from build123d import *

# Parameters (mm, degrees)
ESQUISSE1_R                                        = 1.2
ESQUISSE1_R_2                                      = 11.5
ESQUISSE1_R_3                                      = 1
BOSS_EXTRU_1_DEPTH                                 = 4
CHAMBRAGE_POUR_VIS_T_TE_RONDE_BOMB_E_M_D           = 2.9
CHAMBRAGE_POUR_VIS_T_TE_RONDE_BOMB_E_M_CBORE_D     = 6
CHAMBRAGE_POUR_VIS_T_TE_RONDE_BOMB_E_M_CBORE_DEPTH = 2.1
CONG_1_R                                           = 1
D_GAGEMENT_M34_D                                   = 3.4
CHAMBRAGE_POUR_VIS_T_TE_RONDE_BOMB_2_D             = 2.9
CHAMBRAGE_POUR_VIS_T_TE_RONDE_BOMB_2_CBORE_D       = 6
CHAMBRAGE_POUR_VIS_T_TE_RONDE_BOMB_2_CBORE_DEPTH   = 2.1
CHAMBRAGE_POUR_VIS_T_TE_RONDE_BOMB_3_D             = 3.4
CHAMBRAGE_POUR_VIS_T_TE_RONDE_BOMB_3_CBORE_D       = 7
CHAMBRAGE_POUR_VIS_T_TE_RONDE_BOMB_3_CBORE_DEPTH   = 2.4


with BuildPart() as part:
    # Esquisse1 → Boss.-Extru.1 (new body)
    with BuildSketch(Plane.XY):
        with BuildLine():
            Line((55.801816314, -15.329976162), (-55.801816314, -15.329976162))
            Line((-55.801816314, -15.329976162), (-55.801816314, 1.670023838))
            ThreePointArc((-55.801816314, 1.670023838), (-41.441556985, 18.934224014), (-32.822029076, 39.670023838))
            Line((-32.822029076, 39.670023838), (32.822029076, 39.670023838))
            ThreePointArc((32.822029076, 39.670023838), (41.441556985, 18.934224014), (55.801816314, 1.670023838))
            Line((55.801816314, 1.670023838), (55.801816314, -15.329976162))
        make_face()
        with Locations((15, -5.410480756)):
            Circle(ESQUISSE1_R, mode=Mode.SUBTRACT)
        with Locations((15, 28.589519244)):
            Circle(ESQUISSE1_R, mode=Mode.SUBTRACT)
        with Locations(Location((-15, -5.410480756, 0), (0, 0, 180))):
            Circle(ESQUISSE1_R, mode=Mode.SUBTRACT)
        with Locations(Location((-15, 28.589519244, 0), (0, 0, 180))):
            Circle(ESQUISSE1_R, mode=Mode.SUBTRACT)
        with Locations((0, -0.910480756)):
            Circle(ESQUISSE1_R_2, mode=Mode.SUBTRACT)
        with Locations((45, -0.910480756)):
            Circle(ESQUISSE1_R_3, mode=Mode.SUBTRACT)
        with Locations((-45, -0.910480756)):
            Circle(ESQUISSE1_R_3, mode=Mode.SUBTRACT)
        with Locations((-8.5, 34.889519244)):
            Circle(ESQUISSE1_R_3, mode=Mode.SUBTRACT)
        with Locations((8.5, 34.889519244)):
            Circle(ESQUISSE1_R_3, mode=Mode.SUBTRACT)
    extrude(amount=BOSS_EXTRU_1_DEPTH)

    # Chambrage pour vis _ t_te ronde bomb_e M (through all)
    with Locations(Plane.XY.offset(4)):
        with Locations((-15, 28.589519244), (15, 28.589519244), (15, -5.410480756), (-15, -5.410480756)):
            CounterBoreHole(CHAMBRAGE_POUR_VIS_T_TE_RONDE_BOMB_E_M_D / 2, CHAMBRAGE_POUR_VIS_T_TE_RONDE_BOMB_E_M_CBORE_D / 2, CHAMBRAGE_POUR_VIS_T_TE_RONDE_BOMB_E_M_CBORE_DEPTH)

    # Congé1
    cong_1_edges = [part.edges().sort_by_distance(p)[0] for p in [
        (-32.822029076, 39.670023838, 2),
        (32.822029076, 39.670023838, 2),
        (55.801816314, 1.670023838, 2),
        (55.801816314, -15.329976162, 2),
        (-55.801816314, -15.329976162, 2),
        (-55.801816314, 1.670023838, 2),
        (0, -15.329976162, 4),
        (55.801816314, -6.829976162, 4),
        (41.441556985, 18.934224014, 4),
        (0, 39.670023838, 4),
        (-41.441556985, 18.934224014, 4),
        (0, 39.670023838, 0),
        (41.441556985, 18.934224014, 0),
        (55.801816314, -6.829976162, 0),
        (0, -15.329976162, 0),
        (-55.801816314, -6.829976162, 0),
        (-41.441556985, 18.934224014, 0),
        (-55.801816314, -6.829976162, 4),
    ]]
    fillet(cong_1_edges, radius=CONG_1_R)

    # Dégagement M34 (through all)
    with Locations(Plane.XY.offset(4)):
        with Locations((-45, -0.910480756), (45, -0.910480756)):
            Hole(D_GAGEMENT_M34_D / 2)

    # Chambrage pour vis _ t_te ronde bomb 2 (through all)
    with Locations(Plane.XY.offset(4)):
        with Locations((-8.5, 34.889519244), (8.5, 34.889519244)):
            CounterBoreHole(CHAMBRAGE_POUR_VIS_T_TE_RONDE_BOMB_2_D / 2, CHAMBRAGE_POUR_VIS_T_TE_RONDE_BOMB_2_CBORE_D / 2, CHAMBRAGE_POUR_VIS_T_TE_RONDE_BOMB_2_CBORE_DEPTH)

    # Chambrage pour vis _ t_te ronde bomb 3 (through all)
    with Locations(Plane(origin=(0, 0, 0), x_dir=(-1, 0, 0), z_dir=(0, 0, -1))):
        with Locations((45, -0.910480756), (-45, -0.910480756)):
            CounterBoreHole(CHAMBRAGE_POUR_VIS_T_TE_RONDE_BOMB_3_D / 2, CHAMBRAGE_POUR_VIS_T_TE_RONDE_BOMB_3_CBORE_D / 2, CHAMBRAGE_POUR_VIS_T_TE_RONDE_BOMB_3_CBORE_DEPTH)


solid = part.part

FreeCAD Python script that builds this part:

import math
import FreeCAD as App
import Part
import Sketcher
from FreeCAD import Vector


def edges_at(feature, points):
    """Names of the edges that pass closest to the given points."""
    edges = feature.Shape.Edges
    near = lambda p: min(range(len(edges)), key=lambda i: edges[i].distToShape(Part.Vertex(*p))[0])
    return sorted({f"Edge{near(p) + 1}" for p in points})

doc = App.newDocument("Part")
body = doc.addObject("PartDesign::Body", "Body")

# Sketch on XY plane
sketch1 = doc.addObject("Sketcher::SketchObject", "Sketch")
body.addObject(sketch1)
sketch1.AttachmentSupport = (doc.XY_Plane, [""])
sketch1.MapMode = "FlatFace"
sketch1.addGeometry([
    Part.LineSegment(Vector(-55.801816, -15.329976, 0), Vector(55.801816, -15.329976, 0)),  # 0
    Part.LineSegment(Vector(55.801816, -15.329976, 0), Vector(55.801816, 1.670024, 0)),  # 1
    Part.ArcOfCircle(Part.Circle(Vector(105.760713, 57.830027, 0), Vector(0, 0, 1), 75.1654), math.radians(-166.018974), math.radians(-131.655698)),  # 2
    Part.LineSegment(Vector(32.822029, 39.670024, 0), Vector(-32.822029, 39.670024, 0)),  # 3
    Part.ArcOfCircle(Part.Circle(Vector(-105.760713, 57.830027, 0), Vector(0, 0, 1), 75.1654), math.radians(-48.344302), math.radians(-13.981026)),  # 4
    Part.LineSegment(Vector(-55.801816, 1.670024, 0), Vector(-55.801816, -15.329976, 0)),  # 5
    Part.Circle(Vector(45, -0.910481, 0), Vector(0, 0, 1), 1),  # 6
    Part.Circle(Vector(15, -5.410481, 0), Vector(0, 0, 1), 1.2),  # 7
    Part.Circle(Vector(0, -0.910481, 0), Vector(0, 0, 1), 11.5),  # 8
    Part.Circle(Vector(-15, -5.410481, 0), Vector(0, 0, 1), 1.2),  # 9
    Part.Circle(Vector(-45, -0.910481, 0), Vector(0, 0, 1), 1),  # 10
    Part.Circle(Vector(15, 28.589519, 0), Vector(0, 0, 1), 1.2),  # 11
    Part.Circle(Vector(8.5, 34.889519, 0), Vector(0, 0, 1), 1),  # 12
    Part.Circle(Vector(-15, 28.589519, 0), Vector(0, 0, 1), 1.2),  # 13
    Part.Circle(Vector(-8.5, 34.889519, 0), Vector(0, 0, 1), 1),  # 14
], False)
sketch1.addConstraint([
    Sketcher.Constraint("Coincident", 0, 2, 1, 1),
    Sketcher.Constraint("Coincident", 1, 2, 2, 2),
    Sketcher.Constraint("Coincident", 2, 1, 3, 1),
    Sketcher.Constraint("Coincident", 3, 2, 4, 2),
    Sketcher.Constraint("Coincident", 4, 1, 5, 1),
    Sketcher.Constraint("Coincident", 5, 2, 0, 1),
    Sketcher.Constraint("Horizontal", 0),
    Sketcher.Constraint("Vertical", 1),
    Sketcher.Constraint("Horizontal", 3),
    Sketcher.Constraint("Vertical", 5),
    Sketcher.Constraint("Equal", 2, 4),
    Sketcher.Constraint("Equal", 7, 9),
    Sketcher.Constraint("Equal", 6, 10),
    Sketcher.Constraint("Equal", 9, 11),
    Sketcher.Constraint("Equal", 10, 12),
    Sketcher.Constraint("Equal", 11, 13),
    Sketcher.Constraint("Equal", 12, 14),
    Sketcher.Constraint("Symmetric", 2, 3, 4, 3, -2),
    Sketcher.Constraint("Symmetric", 7, 3, 9, 3, -2),
    Sketcher.Constraint("Symmetric", 6, 3, 10, 3, -2),
    Sketcher.Constraint("Symmetric", 11, 3, 13, 3, -2),
    Sketcher.Constraint("Symmetric", 12, 3, 14, 3, -2),
    Sketcher.Constraint("PointOnObject", 8, 3, -2),
    Sketcher.Constraint("Horizontal", 6, 3, 8, 3),
    Sketcher.Constraint("Horizontal", 1, 2, 4, 1),
    Sketcher.Constraint("Vertical", 7, 3, 11, 3),
    Sketcher.Constraint("Diameter", 6, 2.0),
    Sketcher.Constraint("Diameter", 8, 23.0),
    Sketcher.Constraint("Diameter", 7, 2.4),
    Sketcher.Constraint("DistanceY", 1, 1, 1, 2, 17.0),
    Sketcher.Constraint("DistanceX", -1, 1, 6, 3, 45.0),
    Sketcher.Constraint("DistanceX", -1, 1, 7, 3, 15.0),
    Sketcher.Constraint("DistanceY", 7, 3, 11, 3, 34.0),
    Sketcher.Constraint("DistanceX", 14, 3, 12, 3, 17.0),
    Sketcher.Constraint("DistanceY", 1, 2, 2, 1, 38.0),
    Sketcher.Constraint("Radius", 2, 75.1654),
    Sketcher.Constraint("DistanceY", 7, 3, 6, 3, 4.5),
    Sketcher.Constraint("DistanceY", 11, 3, 12, 3, 6.3),
    Sketcher.Constraint("DistanceX", 3, 2, 3, 1, 65.644058),
    Sketcher.Constraint("DistanceX", 0, 1, 0, 2, 111.603633),
    Sketcher.Constraint("DistanceY", 6, 3, -1, 1, 0.910481),
    Sketcher.Constraint("DistanceY", -1, 1, 2, 3, 57.830027),
])
pad1 = doc.addObject("PartDesign::Pad", "Pad")
body.addObject(pad1)
pad1.Profile = sketch1
pad1.Length = 4

# Sketch on XY plane
sketch2 = doc.addObject("Sketcher::SketchObject", "Sketch001")
body.addObject(sketch2)
sketch2.AttachmentSupport = (doc.XY_Plane, [""])
sketch2.MapMode = "FlatFace"
sketch2.AttachmentOffset = App.Placement(Vector(0, 0, 4), App.Rotation())
sketch2.addGeometry([
    Part.Circle(Vector(-15, 28.589519, 0), Vector(0, 0, 1), 1.45),
    Part.Circle(Vector(15, 28.589519, 0), Vector(0, 0, 1), 1.45),
    Part.Circle(Vector(15, -5.410481, 0), Vector(0, 0, 1), 1.45),
    Part.Circle(Vector(-15, -5.410481, 0), Vector(0, 0, 1), 1.45),
], False)
sketch2.addConstraint([
    Sketcher.Constraint("Equal", 0, 1),
    Sketcher.Constraint("Equal", 1, 2),
    Sketcher.Constraint("Equal", 2, 3),
    Sketcher.Constraint("Symmetric", 0, 3, 1, 3, -2),
    Sketcher.Constraint("Symmetric", 2, 3, 3, 3, -2),
    Sketcher.Constraint("Vertical", 1, 3, 2, 3),
    Sketcher.Constraint("Diameter", 0, 2.9),
    Sketcher.Constraint("DistanceX", 0, 3, -1, 1, 15.0),
    Sketcher.Constraint("DistanceY", 2, 3, 1, 3, 34.0),
    Sketcher.Constraint("DistanceY", -1, 1, 0, 3, 28.589519),
])
doc.recompute()
hole = doc.addObject("PartDesign::Hole", "Hole")
body.addObject(hole)
hole.Profile = sketch2
hole.ThreadType = "None"
hole.Diameter = 2.9
hole.DepthType = "ThroughAll"
hole.HoleCutType = "Counterbore"
hole.HoleCutDiameter = 6
hole.HoleCutDepth = 2.1
doc.recompute()

fillet = doc.addObject("PartDesign::Fillet", "Fillet")
body.addObject(fillet)
fillet.Base = (hole, edges_at(hole, [
    (-32.822, 39.67, 2),
    (32.822, 39.67, 2),
    (55.802, 1.67, 2),
    (55.802, -15.33, 2),
    (-55.802, -15.33, 2),
    (-55.802, 1.67, 2),
    (0, -15.33, 4),
    (55.802, -6.83, 4),
    (41.442, 18.934, 4),
    (0, 39.67, 4),
    (-41.442, 18.934, 4),
    (0, 39.67, 0),
    (41.442, 18.934, 0),
    (55.802, -6.83, 0),
    (0, -15.33, 0),
    (-55.802, -6.83, 0),
    (-41.442, 18.934, 0),
    (-55.802, -6.83, 4),
]))
fillet.Radius = 1

# Sketch on XY plane
sketch3 = doc.addObject("Sketcher::SketchObject", "Sketch002")
body.addObject(sketch3)
sketch3.AttachmentSupport = (doc.XY_Plane, [""])
sketch3.MapMode = "FlatFace"
sketch3.AttachmentOffset = App.Placement(Vector(0, 0, 4), App.Rotation())
sketch3.addGeometry([
    Part.Circle(Vector(-45, -0.910481, 0), Vector(0, 0, 1), 1.7),
    Part.Circle(Vector(45, -0.910481, 0), Vector(0, 0, 1), 1.7),
], False)
sketch3.addConstraint([
    Sketcher.Constraint("Equal", 0, 1),
    Sketcher.Constraint("Symmetric", 0, 3, 1, 3, -2),
    Sketcher.Constraint("Diameter", 0, 3.4),
    Sketcher.Constraint("DistanceX", 0, 3, -1, 1, 45.0),
    Sketcher.Constraint("DistanceY", 0, 3, -1, 1, 0.910481),
])
doc.recompute()
hole2 = doc.addObject("PartDesign::Hole", "Hole001")
body.addObject(hole2)
hole2.Profile = sketch3
hole2.ThreadType = "None"
hole2.Diameter = 3.4
hole2.DepthType = "ThroughAll"

# Sketch on XY plane
sketch4 = doc.addObject("Sketcher::SketchObject", "Sketch003")
body.addObject(sketch4)
sketch4.AttachmentSupport = (doc.XY_Plane, [""])
sketch4.MapMode = "FlatFace"
sketch4.AttachmentOffset = App.Placement(Vector(0, 0, 4), App.Rotation())
sketch4.addGeometry([
    Part.Circle(Vector(-8.5, 34.889519, 0), Vector(0, 0, 1), 1.45),
    Part.Circle(Vector(8.5, 34.889519, 0), Vector(0, 0, 1), 1.45),
], False)
sketch4.addConstraint([
    Sketcher.Constraint("Equal", 0, 1),
    Sketcher.Constraint("Symmetric", 0, 3, 1, 3, -2),
    Sketcher.Constraint("Diameter", 0, 2.9),
    Sketcher.Constraint("DistanceX", 0, 3, 1, 3, 17.0),
    Sketcher.Constraint("DistanceY", -1, 1, 0, 3, 34.889519),
])
doc.recompute()
hole3 = doc.addObject("PartDesign::Hole", "Hole002")
body.addObject(hole3)
hole3.Profile = sketch4
hole3.ThreadType = "None"
hole3.Diameter = 2.9
hole3.DepthType = "ThroughAll"
hole3.HoleCutType = "Counterbore"
hole3.HoleCutDiameter = 6
hole3.HoleCutDepth = 2.1

# Sketch on XY plane
sketch5 = doc.addObject("Sketcher::SketchObject", "Sketch004")
body.addObject(sketch5)
sketch5.AttachmentSupport = (doc.XY_Plane, [""])
sketch5.MapMode = "FlatFace"
sketch5.addGeometry([
    Part.Circle(Vector(-45, -0.910481, 0), Vector(0, 0, 1), 1.7),
    Part.Circle(Vector(45, -0.910481, 0), Vector(0, 0, 1), 1.7),
], False)
sketch5.addConstraint([
    Sketcher.Constraint("Equal", 0, 1),
    Sketcher.Constraint("Symmetric", 0, 3, 1, 3, -2),
    Sketcher.Constraint("Diameter", 0, 3.4),
    Sketcher.Constraint("DistanceX", 0, 3, -1, 1, 45.0),
    Sketcher.Constraint("DistanceY", 0, 3, -1, 1, 0.910481),
])
doc.recompute()
hole4 = doc.addObject("PartDesign::Hole", "Hole003")
body.addObject(hole4)
hole4.Profile = sketch5
hole4.ThreadType = "None"
hole4.Diameter = 3.4
hole4.DepthType = "ThroughAll"
hole4.HoleCutType = "Counterbore"
hole4.HoleCutDiameter = 7
hole4.HoleCutDepth = 2.4
hole4.Reversed = True

doc.recompute()
